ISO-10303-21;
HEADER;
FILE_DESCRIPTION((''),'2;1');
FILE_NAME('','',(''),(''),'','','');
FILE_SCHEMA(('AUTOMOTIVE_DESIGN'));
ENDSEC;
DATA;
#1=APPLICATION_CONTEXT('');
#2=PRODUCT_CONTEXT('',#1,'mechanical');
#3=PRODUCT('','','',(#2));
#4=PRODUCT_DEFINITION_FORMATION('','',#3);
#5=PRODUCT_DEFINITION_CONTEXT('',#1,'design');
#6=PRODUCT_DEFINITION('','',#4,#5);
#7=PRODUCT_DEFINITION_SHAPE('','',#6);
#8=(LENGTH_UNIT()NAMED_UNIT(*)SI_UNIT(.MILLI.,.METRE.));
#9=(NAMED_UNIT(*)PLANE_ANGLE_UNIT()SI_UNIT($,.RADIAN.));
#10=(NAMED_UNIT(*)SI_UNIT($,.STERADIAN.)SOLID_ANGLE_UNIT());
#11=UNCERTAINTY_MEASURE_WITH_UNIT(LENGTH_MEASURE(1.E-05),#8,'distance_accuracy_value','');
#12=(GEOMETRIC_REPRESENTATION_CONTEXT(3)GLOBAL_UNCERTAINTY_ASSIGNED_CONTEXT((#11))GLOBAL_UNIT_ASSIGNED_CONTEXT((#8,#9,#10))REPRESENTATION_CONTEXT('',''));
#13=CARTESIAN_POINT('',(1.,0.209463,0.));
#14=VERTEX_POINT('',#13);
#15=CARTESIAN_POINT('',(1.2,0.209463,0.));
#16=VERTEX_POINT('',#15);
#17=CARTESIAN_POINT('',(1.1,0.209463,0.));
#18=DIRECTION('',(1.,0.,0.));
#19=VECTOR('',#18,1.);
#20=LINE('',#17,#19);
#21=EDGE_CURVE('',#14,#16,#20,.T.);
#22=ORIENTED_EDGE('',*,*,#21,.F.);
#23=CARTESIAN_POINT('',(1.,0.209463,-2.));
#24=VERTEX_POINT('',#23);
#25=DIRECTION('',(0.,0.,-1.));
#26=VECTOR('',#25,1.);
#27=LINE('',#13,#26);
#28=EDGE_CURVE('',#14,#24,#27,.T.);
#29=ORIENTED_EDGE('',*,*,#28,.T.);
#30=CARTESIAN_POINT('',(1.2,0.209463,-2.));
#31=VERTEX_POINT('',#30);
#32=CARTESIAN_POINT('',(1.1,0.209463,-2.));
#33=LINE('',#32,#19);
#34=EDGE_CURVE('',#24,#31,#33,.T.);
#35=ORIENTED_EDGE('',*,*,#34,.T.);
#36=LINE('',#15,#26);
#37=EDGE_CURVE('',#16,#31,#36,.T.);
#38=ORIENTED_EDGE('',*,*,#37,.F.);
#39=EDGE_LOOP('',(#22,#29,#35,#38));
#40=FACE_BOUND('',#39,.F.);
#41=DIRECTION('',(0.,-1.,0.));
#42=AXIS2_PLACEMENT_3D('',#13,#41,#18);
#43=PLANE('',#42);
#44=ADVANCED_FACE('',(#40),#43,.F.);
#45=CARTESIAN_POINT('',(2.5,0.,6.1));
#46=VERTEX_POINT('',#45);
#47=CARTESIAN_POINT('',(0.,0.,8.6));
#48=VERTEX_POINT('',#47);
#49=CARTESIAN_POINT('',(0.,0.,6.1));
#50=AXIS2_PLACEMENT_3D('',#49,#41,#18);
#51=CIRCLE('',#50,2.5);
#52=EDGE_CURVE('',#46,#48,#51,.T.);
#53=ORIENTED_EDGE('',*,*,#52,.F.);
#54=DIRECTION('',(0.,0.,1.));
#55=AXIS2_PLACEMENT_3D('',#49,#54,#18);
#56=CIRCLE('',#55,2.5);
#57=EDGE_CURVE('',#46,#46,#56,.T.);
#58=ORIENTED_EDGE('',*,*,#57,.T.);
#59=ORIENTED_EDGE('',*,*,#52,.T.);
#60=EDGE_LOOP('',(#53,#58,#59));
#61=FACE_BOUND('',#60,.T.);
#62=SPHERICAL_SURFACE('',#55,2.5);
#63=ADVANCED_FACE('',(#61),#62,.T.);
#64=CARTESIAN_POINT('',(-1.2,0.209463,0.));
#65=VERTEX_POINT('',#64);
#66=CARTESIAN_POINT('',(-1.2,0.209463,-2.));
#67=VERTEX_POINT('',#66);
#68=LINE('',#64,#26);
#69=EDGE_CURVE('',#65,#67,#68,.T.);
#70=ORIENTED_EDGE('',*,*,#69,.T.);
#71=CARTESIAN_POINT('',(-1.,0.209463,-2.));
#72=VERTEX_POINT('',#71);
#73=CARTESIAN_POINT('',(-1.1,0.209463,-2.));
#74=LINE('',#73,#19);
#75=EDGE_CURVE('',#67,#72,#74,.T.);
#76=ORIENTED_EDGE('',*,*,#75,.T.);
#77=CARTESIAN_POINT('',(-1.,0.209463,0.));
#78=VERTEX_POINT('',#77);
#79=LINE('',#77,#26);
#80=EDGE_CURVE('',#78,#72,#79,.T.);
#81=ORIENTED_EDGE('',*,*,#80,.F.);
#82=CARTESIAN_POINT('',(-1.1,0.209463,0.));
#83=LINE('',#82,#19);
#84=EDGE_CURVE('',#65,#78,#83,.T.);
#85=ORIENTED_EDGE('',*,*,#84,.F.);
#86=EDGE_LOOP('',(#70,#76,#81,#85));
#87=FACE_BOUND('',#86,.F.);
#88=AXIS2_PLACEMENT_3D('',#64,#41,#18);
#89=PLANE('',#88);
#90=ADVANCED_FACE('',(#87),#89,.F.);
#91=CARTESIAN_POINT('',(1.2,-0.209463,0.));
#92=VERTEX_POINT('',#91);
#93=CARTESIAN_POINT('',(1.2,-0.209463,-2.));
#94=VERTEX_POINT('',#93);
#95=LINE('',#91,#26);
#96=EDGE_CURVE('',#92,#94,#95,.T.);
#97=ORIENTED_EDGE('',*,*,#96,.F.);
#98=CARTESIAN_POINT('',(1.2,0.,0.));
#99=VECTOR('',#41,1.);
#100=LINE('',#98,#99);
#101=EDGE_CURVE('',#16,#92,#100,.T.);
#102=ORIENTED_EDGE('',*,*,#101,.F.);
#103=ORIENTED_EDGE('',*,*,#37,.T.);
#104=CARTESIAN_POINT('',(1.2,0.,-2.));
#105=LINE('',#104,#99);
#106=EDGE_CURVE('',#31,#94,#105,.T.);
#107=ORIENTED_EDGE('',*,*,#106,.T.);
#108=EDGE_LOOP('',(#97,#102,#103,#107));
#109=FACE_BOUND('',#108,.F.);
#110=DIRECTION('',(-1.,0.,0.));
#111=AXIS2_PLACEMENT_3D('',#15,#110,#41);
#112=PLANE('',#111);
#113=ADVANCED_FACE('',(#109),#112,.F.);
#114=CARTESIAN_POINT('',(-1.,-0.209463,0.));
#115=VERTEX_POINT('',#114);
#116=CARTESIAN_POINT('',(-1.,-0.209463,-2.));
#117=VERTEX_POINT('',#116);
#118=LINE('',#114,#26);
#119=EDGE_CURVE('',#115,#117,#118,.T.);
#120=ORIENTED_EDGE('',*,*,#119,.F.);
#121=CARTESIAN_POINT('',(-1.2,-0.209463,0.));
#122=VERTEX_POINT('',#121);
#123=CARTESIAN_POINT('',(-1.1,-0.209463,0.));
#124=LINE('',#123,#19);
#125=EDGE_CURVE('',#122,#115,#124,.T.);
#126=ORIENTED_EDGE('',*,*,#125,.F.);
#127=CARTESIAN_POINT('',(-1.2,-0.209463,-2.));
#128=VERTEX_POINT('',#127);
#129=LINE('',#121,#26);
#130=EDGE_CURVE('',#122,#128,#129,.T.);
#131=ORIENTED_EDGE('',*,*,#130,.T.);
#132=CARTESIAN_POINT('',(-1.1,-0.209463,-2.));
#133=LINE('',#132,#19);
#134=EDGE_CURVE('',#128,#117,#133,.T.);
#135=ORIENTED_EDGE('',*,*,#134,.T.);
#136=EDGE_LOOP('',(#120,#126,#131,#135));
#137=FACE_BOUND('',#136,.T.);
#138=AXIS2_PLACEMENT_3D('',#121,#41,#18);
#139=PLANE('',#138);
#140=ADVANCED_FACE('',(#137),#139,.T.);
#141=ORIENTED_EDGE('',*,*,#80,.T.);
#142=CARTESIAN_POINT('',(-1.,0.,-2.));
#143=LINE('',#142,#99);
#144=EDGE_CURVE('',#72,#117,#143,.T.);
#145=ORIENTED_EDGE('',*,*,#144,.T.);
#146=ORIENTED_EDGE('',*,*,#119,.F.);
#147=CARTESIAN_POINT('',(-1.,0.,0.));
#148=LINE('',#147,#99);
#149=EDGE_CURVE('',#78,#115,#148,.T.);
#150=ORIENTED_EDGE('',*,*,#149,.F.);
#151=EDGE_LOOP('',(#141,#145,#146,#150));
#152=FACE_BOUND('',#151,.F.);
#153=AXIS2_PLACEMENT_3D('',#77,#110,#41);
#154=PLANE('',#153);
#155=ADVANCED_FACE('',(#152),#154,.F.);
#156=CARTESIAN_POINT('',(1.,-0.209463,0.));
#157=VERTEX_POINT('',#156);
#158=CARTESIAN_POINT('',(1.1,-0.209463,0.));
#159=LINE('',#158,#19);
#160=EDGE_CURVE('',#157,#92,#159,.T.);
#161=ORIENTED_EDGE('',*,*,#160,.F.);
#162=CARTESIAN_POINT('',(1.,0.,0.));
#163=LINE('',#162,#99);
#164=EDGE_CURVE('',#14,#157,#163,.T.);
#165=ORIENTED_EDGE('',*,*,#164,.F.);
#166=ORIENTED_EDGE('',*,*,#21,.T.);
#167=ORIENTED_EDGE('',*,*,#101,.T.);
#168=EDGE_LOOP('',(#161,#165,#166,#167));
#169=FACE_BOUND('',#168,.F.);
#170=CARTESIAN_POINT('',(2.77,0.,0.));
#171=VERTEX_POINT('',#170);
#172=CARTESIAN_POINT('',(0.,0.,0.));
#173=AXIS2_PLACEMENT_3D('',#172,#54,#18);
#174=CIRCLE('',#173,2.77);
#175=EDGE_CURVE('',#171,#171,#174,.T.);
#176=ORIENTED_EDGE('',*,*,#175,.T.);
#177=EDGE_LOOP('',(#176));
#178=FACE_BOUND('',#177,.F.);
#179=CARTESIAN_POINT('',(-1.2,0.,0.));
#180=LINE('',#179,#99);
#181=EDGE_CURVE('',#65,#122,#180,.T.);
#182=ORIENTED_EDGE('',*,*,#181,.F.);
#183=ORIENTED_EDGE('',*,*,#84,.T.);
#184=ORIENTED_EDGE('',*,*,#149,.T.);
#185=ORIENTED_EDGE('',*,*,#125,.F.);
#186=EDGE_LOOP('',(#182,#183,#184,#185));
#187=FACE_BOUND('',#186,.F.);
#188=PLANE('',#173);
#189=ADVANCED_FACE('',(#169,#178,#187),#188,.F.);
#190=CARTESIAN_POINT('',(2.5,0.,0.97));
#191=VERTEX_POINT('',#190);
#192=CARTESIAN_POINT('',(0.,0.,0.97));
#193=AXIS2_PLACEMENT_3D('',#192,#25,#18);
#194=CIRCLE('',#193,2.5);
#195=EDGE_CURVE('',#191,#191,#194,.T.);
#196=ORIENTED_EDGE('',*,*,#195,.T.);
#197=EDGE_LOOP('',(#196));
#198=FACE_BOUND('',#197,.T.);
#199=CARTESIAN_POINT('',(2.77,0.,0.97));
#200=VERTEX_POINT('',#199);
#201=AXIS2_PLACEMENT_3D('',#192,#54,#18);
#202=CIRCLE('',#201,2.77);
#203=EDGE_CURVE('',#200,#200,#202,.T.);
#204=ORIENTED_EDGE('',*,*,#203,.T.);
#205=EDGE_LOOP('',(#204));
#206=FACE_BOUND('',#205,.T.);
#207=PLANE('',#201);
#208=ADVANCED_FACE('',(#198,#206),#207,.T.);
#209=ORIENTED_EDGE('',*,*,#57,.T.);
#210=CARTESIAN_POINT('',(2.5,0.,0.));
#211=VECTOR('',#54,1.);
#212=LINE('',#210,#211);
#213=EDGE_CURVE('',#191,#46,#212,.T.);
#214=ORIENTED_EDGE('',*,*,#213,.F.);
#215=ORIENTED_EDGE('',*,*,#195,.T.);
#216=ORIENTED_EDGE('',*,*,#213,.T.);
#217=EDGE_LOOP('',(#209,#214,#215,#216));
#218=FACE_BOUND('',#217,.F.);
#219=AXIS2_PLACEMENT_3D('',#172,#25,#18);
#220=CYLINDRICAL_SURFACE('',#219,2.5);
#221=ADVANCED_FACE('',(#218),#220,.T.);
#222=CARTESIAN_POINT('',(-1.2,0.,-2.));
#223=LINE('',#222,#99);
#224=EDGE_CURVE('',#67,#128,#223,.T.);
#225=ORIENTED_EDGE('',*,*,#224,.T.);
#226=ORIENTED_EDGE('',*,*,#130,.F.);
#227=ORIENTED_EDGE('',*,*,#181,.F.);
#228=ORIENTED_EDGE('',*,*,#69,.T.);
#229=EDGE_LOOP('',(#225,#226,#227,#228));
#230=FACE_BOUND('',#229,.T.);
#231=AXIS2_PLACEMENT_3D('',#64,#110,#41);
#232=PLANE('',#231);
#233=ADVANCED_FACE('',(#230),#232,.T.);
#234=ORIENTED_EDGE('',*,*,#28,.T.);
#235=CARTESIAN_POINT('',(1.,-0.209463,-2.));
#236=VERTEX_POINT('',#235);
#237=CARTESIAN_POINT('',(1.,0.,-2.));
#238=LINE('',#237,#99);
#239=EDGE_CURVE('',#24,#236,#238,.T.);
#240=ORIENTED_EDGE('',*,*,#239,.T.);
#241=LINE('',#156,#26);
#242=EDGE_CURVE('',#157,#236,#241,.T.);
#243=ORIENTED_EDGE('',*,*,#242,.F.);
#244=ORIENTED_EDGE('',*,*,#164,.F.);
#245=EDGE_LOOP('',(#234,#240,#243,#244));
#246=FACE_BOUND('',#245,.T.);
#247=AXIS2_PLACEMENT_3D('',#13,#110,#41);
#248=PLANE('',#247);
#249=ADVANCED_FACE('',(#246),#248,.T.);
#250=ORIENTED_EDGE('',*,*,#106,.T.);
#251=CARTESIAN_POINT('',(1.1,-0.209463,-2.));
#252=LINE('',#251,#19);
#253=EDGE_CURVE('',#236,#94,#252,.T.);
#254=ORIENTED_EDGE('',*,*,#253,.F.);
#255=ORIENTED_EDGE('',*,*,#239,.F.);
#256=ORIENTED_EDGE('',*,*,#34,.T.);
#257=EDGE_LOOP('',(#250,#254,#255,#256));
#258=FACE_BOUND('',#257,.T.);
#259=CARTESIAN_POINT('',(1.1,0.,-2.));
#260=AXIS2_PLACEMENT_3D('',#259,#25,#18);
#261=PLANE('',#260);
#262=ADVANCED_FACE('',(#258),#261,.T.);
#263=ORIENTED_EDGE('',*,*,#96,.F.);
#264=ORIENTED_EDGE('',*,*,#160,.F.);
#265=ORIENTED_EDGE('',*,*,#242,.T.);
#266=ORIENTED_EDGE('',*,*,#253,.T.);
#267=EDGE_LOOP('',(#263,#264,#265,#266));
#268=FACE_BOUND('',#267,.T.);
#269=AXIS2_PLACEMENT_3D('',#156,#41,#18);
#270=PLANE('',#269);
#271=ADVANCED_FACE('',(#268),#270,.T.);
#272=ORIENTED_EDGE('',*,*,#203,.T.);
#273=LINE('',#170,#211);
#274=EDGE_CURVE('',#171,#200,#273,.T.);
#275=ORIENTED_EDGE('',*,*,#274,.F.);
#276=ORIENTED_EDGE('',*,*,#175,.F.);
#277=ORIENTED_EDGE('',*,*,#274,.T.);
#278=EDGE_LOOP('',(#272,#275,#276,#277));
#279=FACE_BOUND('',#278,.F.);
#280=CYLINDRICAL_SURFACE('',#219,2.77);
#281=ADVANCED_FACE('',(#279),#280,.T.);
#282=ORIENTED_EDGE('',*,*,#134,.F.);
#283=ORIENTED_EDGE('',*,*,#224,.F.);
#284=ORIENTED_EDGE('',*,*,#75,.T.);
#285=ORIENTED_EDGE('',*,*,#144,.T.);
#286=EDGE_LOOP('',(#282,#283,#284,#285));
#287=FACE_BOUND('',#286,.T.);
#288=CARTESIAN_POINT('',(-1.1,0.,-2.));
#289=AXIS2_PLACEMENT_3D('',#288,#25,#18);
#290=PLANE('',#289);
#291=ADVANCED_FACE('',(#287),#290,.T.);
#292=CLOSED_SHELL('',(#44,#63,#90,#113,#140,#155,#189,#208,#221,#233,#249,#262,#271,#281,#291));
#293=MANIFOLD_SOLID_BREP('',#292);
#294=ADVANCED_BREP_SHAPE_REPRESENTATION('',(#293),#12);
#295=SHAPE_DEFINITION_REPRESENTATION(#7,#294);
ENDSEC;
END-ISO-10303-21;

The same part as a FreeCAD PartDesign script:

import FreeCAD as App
import Part
import Sketcher

V = App.Vector
Q = App.Units.Quantity


def edges_at(feature, points):
    """Names of the edges that pass closest to the given points."""
    edges = feature.Shape.Edges
    near = lambda p: min(range(len(edges)), key=lambda i: edges[i].distToShape(Part.Vertex(*p))[0])
    return sorted({f"Edge{near(p) + 1}" for p in points})

doc = App.newDocument("Part")
body = doc.addObject("PartDesign::Body", "Body")

# Sketch on XY plane
sketch1 = body.newObject("Sketcher::SketchObject", "Sketch")
sketch1.AttachmentSupport = (doc.getObject("XY_Plane"), [""])
sketch1.MapMode = "FlatFace"
sketch1.addGeometry(Part.Circle(V(0, 0, 0), V(0, 0, 1), 2.8), False)
sketch1.addConstraint([
    Sketcher.Constraint("Coincident", 0, 3, -1, 1),
    Sketcher.Constraint("Diameter", 0, Q("5.54 mm")),
])
pad1 = body.newObject("PartDesign::Pad", "Pad")
pad1.Profile = sketch1
pad1.Length = 0.97

# Sketch on XY plane
sketch2 = body.newObject("Sketcher::SketchObject", "Sketch001")
sketch2.AttachmentSupport = (doc.getObject("XY_Plane"), [""])
sketch2.MapMode = "FlatFace"
sketch2.addGeometry(Part.Circle(V(0, 0, 0), V(0, 0, 1), 2.5), False)
sketch2.addConstraint([
    Sketcher.Constraint("Coincident", 0, 3, -1, 1),
    Sketcher.Constraint("Diameter", 0, Q("5 mm")),
])
pad2 = body.newObject("PartDesign::Pad", "Pad001")
pad2.Profile = sketch2
pad2.Length = 8.6
doc.recompute()

fillet = body.newObject("PartDesign::Fillet", "Fillet")
fillet.Base = (pad2, edges_at(pad2, [(-2.5, 0, 8.6)]))
fillet.Radius = 2.5

# Sketch on XY plane
sketch3 = body.newObject("Sketcher::SketchObject", "Sketch002")
sketch3.AttachmentSupport = (doc.getObject("XY_Plane"), [""])
sketch3.MapMode = "FlatFace"
sketch3.addGeometry([
    Part.LineSegment(V(-1.2, -0.21, 0), V(-1.2, 0.21, 0)),  # 0
    Part.LineSegment(V(-1.2, 0.21, 0), V(-1, 0.21, 0)),  # 1
    Part.LineSegment(V(-1, 0.21, 0), V(-1, -0.21, 0)),  # 2
    Part.LineSegment(V(-1, -0.21, 0), V(-1.2, -0.21, 0)),  # 3
    Part.LineSegment(V(1, -0.21, 0), V(1, 0.21, 0)),  # 4
    Part.LineSegment(V(1, 0.21, 0), V(1.2, 0.21, 0)),  # 5
    Part.LineSegment(V(1.2, 0.21, 0), V(1.2, -0.21, 0)),  # 6
    Part.LineSegment(V(1.2, -0.21, 0), V(1, -0.21, 0)),  # 7
], False)
sketch3.addConstraint([
    Sketcher.Constraint("Coincident", 0, 2, 1, 1),
    Sketcher.Constraint("Coincident", 1, 2, 2, 1),
    Sketcher.Constraint("Coincident", 2, 2, 3, 1),
    Sketcher.Constraint("Coincident", 3, 2, 0, 1),
    Sketcher.Constraint("Coincident", 4, 2, 5, 1),
    Sketcher.Constraint("Coincident", 5, 2, 6, 1),
    Sketcher.Constraint("Coincident", 6, 2, 7, 1),
    Sketcher.Constraint("Coincident", 7, 2, 4, 1),
    Sketcher.Constraint("Vertical", 0),
    Sketcher.Constraint("Horizontal", 1),
    Sketcher.Constraint("Vertical", 2),
    Sketcher.Constraint("Horizontal", 3),
    Sketcher.Constraint("Vertical", 4),
    Sketcher.Constraint("Horizontal", 5),
    Sketcher.Constraint("Vertical", 6),
    Sketcher.Constraint("Horizontal", 7),
    Sketcher.Constraint("Symmetric", 2, 2, 4, 2, -1, 1),
    Sketcher.Constraint("Symmetric", 0, 2, 6, 2, -1, 1),
    Sketcher.Constraint("Horizontal", 1, 2, 4, 2),
    Sketcher.Constraint("DistanceX", 1, 1, 1, 2, Q("0.2 mm")),
    Sketcher.Constraint("DistanceX", 1, 2, -1, 1, Q("1 mm")),
    Sketcher.Constraint("DistanceY", 0, 1, 0, 2, Q("0.418926 mm")),
])
pad3 = body.newObject("PartDesign::Pad", "Pad002")
pad3.Profile = sketch3
pad3.Length = 2
pad3.Reversed = True

doc.recompute()
